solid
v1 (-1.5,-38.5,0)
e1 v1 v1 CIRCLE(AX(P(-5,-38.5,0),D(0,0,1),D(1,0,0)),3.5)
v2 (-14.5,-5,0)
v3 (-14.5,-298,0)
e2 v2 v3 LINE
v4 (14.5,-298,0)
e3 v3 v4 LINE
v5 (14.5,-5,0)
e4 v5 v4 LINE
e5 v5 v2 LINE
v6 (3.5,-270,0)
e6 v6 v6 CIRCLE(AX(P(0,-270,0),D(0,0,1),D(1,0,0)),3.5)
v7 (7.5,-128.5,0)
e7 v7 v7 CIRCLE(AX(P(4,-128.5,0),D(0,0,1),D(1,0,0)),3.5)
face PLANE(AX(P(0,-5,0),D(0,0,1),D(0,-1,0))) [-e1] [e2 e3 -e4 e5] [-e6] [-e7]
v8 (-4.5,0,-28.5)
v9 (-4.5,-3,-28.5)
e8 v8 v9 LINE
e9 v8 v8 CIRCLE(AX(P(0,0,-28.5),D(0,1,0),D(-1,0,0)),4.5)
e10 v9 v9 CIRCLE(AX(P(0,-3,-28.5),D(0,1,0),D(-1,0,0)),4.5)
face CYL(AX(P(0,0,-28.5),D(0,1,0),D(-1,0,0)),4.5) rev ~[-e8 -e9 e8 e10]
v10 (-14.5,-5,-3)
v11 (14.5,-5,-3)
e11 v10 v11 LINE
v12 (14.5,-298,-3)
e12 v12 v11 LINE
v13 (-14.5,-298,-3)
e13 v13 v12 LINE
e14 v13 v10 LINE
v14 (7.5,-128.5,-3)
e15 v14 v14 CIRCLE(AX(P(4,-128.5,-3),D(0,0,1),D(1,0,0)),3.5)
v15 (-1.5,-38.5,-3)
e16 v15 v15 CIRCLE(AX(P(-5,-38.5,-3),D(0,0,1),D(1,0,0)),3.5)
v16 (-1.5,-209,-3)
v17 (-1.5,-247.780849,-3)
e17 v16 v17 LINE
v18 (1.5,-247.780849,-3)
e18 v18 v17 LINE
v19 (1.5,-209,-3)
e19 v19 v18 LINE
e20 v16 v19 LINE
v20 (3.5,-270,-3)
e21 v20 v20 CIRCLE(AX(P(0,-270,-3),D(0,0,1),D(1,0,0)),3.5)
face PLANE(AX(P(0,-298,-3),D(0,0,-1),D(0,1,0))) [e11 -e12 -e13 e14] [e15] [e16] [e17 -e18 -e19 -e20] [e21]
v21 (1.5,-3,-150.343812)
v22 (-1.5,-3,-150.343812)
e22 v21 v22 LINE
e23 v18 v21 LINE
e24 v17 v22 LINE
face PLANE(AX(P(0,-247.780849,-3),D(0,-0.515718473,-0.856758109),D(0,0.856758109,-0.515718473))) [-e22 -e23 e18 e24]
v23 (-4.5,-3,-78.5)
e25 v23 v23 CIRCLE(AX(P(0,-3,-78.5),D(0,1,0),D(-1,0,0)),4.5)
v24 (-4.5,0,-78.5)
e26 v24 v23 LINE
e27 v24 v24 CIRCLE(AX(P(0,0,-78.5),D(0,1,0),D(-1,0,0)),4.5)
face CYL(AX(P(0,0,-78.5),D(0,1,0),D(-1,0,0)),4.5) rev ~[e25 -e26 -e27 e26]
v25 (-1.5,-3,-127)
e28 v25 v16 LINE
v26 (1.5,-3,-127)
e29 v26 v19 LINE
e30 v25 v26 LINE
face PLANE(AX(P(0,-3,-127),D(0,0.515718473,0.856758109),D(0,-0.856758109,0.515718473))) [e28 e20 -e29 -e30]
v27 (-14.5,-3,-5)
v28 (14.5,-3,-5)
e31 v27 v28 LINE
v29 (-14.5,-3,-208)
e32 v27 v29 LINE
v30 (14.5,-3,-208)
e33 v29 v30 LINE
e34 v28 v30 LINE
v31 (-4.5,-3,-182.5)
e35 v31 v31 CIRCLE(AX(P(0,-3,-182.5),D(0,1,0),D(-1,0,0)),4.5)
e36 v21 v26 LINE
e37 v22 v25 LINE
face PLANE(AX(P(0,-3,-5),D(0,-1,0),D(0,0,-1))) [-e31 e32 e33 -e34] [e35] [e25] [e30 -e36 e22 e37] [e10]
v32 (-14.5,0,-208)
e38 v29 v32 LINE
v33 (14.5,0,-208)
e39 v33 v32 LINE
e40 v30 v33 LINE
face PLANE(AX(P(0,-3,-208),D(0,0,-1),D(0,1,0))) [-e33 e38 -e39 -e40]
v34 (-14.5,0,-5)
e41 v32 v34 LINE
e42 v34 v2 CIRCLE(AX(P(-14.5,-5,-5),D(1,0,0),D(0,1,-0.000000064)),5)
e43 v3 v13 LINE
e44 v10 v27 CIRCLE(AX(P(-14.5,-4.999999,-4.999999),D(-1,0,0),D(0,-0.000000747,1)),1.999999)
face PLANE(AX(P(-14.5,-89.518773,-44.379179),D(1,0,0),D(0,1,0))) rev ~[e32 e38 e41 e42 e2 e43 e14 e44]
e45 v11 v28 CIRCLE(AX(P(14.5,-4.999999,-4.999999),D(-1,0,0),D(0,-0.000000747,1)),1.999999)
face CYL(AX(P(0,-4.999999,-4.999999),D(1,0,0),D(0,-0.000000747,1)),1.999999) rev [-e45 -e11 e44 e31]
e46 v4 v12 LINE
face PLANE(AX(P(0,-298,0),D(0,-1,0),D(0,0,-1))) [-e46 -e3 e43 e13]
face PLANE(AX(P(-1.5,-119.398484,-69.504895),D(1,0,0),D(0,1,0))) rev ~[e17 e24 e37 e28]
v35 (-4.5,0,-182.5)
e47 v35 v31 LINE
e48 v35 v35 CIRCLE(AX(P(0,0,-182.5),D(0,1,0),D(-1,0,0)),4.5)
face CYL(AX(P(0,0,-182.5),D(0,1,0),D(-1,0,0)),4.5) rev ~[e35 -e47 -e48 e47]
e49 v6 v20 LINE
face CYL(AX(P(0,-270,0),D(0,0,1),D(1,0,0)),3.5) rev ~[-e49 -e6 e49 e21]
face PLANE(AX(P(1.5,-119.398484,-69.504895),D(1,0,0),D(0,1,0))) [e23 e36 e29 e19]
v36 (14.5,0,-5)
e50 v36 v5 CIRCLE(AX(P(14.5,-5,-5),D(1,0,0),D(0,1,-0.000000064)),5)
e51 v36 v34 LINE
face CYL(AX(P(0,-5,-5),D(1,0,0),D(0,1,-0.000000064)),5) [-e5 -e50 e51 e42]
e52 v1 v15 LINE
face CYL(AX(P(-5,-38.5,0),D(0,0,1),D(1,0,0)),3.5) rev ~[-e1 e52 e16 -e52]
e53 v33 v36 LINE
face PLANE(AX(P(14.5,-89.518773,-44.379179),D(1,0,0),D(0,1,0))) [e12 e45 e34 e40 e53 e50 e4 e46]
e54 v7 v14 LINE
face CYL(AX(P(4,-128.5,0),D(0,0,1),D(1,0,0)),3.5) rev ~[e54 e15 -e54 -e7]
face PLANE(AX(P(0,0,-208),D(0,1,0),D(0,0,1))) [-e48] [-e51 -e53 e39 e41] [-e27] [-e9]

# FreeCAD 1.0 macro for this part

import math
import FreeCAD as App
import Part
import Sketcher

V = App.Vector
Q = App.Units.Quantity

doc = App.newDocument("Part")
params = doc.addObject("Spreadsheet::Sheet", "Params")
for row, (alias, value) in enumerate([
    ("sketch1_radius", "1.999999 mm"),
    ("sketch1_radius2", "5 mm"),
    ("sketch1_width", "293 mm"),
    ("sketch1_height", "203 mm"),
    ("pad1_length", "29 mm"),
    ("pad2_length", "3 mm"),
    ("sketch3_diameter", "9 mm"),
    ("pocket1_length", "3 mm"),
    ("sketch4_diameter", "7 mm"),
    ("pocket2_length", "3 mm"),
], start=1):
    params.set(f"A{row}", alias)
    params.set(f"B{row}", "=" + value)
    params.setAlias(f"B{row}", alias)

body = doc.addObject("PartDesign::Body", "Body")

sketch1 = body.newObject("Sketcher::SketchObject", "Sketch")
sketch1.AttachmentSupport = (doc.getObject("YZ_Plane"), [""])
sketch1.MapMode = "FlatFace"
sketch1.addGeometry([
    Part.LineSegment(V(-5, 0, 0), V(-298, 0, 0)),
    Part.LineSegment(V(-298, 0, 0), V(-298, -3, 0)),
    Part.LineSegment(V(-298, -3, 0), V(-5, -3, 0)),
    Part.ArcOfCircle(Part.Circle(V(-4.999999, -4.999999, 0), V(0, 0, 1), 1.999999), math.radians(-0.000043), math.radians(90.000043)),
    Part.LineSegment(V(-3, -5, 0), V(-3, -208, 0)),
    Part.LineSegment(V(-3, -208, 0), V(0, -208, 0)),
    Part.LineSegment(V(0, -208, 0), V(0, -5, 0)),
    Part.ArcOfCircle(Part.Circle(V(-5, -5, 0), V(0, 0, 1), 5), math.radians(-0.000004), math.radians(90.000004)),
], False)
sketch1.addConstraint([
    Sketcher.Constraint("Coincident", 0, 2, 1, 1),
    Sketcher.Constraint("Coincident", 1, 2, 2, 1),
    Sketcher.Constraint("Tangent", 2, 2, 3, 2),
    Sketcher.Constraint("Tangent", 3, 1, 4, 1),
    Sketcher.Constraint("Coincident", 4, 2, 5, 1),
    Sketcher.Constraint("Coincident", 5, 2, 6, 1),
    Sketcher.Constraint("Tangent", 6, 2, 7, 1),
    Sketcher.Constraint("Tangent", 7, 2, 0, 1),
    Sketcher.Constraint("Horizontal", 0),
    Sketcher.Constraint("Vertical", 1),
    Sketcher.Constraint("Horizontal", 2),
    Sketcher.Constraint("Vertical", 4),
    Sketcher.Constraint("Horizontal", 5),
    Sketcher.Constraint("Vertical", 6),
    Sketcher.Constraint("Coincident", 7, 3, 3, 3),
    Sketcher.Constraint("PointOnObject", 0, 2, -1),
    Sketcher.Constraint("PointOnObject", 5, 2, -2),
    Sketcher.Constraint("Radius", 3, Q("1.999999 mm")),
    Sketcher.Constraint("Radius", 7, Q("5 mm")),
    Sketcher.Constraint("DistanceX", 0, 2, 0, 1, Q("293 mm")),
    Sketcher.Constraint("DistanceY", 4, 2, 4, 1, Q("203 mm")),
])
sketch1.setExpression("Constraints[17]", "Params.sketch1_radius")
sketch1.setExpression("Constraints[18]", "Params.sketch1_radius2")
sketch1.setExpression("Constraints[19]", "Params.sketch1_width")
sketch1.setExpression("Constraints[20]", "Params.sketch1_height")
pad1 = body.newObject("PartDesign::Pad", "Pad")
pad1.Profile = sketch1
pad1.setExpression("Length", "Params.pad1_length")
pad1.Midplane = True

sketch2 = body.newObject("Sketcher::SketchObject", "Sketch001")
sketch2.AttachmentSupport = (doc.getObject("YZ_Plane"), [""])
sketch2.MapMode = "FlatFace"
sketch2.addGeometry([
    Part.LineSegment(V(-3, -150.343812, 0), V(-3, -127, 0)),
    Part.LineSegment(V(-3, -127, 0), V(-209, -3, 0)),
    Part.LineSegment(V(-209, -3, 0), V(-247.780849, -3, 0)),
    Part.LineSegment(V(-247.780849, -3, 0), V(-3, -150.343812, 0)),
], False)
sketch2.addConstraint([
    Sketcher.Constraint("Coincident", 0, 2, 1, 1),
    Sketcher.Constraint("Coincident", 1, 2, 2, 1),
    Sketcher.Constraint("Coincident", 2, 2, 3, 1),
    Sketcher.Constraint("Coincident", 3, 2, 0, 1),
    Sketcher.Constraint("Vertical", 0),
    Sketcher.Constraint("Horizontal", 2),
    Sketcher.Constraint("Parallel", 1, 3),
    Sketcher.Constraint("DistanceX", 0, 2, -1, 1, Q("3 mm")),
    Sketcher.Constraint("DistanceY", 0, 2, -1, 1, Q("127 mm")),
    Sketcher.Constraint("DistanceX", 1, 2, -1, 1, Q("209 mm")),
    Sketcher.Constraint("DistanceY", 1, 2, -1, 1, Q("3 mm")),
    Sketcher.Constraint("DistanceX", 2, 2, 2, 1, Q("38.780849 mm")),
])
pad2 = body.newObject("PartDesign::Pad", "Pad001")
pad2.Profile = sketch2
pad2.setExpression("Length", "Params.pad2_length")
pad2.Midplane = True

sketch3 = body.newObject("Sketcher::SketchObject", "Sketch002")
sketch3.AttachmentSupport = (doc.getObject("XZ_Plane"), [""])
sketch3.MapMode = "FlatFace"
sketch3.addGeometry([
    Part.Circle(V(0, -28.5, 0), V(0, 0, 1), 4.5),
    Part.Circle(V(0, -78.5, 0), V(0, 0, 1), 4.5),
    Part.Circle(V(0, -182.5, 0), V(0, 0, 1), 4.5),
], False)
sketch3.addConstraint([
    Sketcher.Constraint("Equal", 0, 1),
    Sketcher.Constraint("Equal", 1, 2),
    Sketcher.Constraint("PointOnObject", 0, 3, -2),
    Sketcher.Constraint("PointOnObject", 1, 3, -2),
    Sketcher.Constraint("PointOnObject", 2, 3, -2),
    Sketcher.Constraint("Diameter", 0, Q("9 mm")),
    Sketcher.Constraint("DistanceY", 1, 3, 0, 3, Q("50 mm")),
    Sketcher.Constraint("DistanceY", 2, 3, 1, 3, Q("104 mm")),
    Sketcher.Constraint("DistanceY", 0, 3, -1, 1, Q("28.5 mm")),
])
sketch3.setExpression("Constraints[5]", "Params.sketch3_diameter")
pocket1 = body.newObject("PartDesign::Pocket", "Pocket")
pocket1.Profile = sketch3
pocket1.setExpression("Length", "Params.pocket1_length")
pocket1.Reversed = True

sketch4 = body.newObject("Sketcher::SketchObject", "Sketch003")
sketch4.AttachmentSupport = (doc.getObject("XY_Plane"), [""])
sketch4.MapMode = "FlatFace"
sketch4.addGeometry([
    Part.Circle(V(-5, -38.5, 0), V(0, 0, 1), 3.5),
    Part.Circle(V(4, -128.5, 0), V(0, 0, 1), 3.5),
    Part.Circle(V(0, -270, 0), V(0, 0, 1), 3.5),
], False)
sketch4.addConstraint([
    Sketcher.Constraint("Equal", 0, 1),
    Sketcher.Constraint("Equal", 1, 2),
    Sketcher.Constraint("PointOnObject", 2, 3, -2),
    Sketcher.Constraint("Diameter", 0, Q("7 mm")),
    Sketcher.Constraint("DistanceX", 0, 3, -1, 1, Q("5 mm")),
    Sketcher.Constraint("DistanceX", -1, 1, 1, 3, Q("4 mm")),
    Sketcher.Constraint("DistanceY", 2, 3, -1, 1, Q("270 mm")),
    Sketcher.Constraint("DistanceY", 1, 3, 0, 3, Q("90 mm")),
    Sketcher.Constraint("DistanceY", 0, 3, -1, 1, Q("38.5 mm")),
])
sketch4.setExpression("Constraints[3]", "Params.sketch4_diameter")
pocket2 = body.newObject("PartDesign::Pocket", "Pocket001")
pocket2.Profile = sketch4
pocket2.setExpression("Length", "Params.pocket2_length")

doc.recompute()
